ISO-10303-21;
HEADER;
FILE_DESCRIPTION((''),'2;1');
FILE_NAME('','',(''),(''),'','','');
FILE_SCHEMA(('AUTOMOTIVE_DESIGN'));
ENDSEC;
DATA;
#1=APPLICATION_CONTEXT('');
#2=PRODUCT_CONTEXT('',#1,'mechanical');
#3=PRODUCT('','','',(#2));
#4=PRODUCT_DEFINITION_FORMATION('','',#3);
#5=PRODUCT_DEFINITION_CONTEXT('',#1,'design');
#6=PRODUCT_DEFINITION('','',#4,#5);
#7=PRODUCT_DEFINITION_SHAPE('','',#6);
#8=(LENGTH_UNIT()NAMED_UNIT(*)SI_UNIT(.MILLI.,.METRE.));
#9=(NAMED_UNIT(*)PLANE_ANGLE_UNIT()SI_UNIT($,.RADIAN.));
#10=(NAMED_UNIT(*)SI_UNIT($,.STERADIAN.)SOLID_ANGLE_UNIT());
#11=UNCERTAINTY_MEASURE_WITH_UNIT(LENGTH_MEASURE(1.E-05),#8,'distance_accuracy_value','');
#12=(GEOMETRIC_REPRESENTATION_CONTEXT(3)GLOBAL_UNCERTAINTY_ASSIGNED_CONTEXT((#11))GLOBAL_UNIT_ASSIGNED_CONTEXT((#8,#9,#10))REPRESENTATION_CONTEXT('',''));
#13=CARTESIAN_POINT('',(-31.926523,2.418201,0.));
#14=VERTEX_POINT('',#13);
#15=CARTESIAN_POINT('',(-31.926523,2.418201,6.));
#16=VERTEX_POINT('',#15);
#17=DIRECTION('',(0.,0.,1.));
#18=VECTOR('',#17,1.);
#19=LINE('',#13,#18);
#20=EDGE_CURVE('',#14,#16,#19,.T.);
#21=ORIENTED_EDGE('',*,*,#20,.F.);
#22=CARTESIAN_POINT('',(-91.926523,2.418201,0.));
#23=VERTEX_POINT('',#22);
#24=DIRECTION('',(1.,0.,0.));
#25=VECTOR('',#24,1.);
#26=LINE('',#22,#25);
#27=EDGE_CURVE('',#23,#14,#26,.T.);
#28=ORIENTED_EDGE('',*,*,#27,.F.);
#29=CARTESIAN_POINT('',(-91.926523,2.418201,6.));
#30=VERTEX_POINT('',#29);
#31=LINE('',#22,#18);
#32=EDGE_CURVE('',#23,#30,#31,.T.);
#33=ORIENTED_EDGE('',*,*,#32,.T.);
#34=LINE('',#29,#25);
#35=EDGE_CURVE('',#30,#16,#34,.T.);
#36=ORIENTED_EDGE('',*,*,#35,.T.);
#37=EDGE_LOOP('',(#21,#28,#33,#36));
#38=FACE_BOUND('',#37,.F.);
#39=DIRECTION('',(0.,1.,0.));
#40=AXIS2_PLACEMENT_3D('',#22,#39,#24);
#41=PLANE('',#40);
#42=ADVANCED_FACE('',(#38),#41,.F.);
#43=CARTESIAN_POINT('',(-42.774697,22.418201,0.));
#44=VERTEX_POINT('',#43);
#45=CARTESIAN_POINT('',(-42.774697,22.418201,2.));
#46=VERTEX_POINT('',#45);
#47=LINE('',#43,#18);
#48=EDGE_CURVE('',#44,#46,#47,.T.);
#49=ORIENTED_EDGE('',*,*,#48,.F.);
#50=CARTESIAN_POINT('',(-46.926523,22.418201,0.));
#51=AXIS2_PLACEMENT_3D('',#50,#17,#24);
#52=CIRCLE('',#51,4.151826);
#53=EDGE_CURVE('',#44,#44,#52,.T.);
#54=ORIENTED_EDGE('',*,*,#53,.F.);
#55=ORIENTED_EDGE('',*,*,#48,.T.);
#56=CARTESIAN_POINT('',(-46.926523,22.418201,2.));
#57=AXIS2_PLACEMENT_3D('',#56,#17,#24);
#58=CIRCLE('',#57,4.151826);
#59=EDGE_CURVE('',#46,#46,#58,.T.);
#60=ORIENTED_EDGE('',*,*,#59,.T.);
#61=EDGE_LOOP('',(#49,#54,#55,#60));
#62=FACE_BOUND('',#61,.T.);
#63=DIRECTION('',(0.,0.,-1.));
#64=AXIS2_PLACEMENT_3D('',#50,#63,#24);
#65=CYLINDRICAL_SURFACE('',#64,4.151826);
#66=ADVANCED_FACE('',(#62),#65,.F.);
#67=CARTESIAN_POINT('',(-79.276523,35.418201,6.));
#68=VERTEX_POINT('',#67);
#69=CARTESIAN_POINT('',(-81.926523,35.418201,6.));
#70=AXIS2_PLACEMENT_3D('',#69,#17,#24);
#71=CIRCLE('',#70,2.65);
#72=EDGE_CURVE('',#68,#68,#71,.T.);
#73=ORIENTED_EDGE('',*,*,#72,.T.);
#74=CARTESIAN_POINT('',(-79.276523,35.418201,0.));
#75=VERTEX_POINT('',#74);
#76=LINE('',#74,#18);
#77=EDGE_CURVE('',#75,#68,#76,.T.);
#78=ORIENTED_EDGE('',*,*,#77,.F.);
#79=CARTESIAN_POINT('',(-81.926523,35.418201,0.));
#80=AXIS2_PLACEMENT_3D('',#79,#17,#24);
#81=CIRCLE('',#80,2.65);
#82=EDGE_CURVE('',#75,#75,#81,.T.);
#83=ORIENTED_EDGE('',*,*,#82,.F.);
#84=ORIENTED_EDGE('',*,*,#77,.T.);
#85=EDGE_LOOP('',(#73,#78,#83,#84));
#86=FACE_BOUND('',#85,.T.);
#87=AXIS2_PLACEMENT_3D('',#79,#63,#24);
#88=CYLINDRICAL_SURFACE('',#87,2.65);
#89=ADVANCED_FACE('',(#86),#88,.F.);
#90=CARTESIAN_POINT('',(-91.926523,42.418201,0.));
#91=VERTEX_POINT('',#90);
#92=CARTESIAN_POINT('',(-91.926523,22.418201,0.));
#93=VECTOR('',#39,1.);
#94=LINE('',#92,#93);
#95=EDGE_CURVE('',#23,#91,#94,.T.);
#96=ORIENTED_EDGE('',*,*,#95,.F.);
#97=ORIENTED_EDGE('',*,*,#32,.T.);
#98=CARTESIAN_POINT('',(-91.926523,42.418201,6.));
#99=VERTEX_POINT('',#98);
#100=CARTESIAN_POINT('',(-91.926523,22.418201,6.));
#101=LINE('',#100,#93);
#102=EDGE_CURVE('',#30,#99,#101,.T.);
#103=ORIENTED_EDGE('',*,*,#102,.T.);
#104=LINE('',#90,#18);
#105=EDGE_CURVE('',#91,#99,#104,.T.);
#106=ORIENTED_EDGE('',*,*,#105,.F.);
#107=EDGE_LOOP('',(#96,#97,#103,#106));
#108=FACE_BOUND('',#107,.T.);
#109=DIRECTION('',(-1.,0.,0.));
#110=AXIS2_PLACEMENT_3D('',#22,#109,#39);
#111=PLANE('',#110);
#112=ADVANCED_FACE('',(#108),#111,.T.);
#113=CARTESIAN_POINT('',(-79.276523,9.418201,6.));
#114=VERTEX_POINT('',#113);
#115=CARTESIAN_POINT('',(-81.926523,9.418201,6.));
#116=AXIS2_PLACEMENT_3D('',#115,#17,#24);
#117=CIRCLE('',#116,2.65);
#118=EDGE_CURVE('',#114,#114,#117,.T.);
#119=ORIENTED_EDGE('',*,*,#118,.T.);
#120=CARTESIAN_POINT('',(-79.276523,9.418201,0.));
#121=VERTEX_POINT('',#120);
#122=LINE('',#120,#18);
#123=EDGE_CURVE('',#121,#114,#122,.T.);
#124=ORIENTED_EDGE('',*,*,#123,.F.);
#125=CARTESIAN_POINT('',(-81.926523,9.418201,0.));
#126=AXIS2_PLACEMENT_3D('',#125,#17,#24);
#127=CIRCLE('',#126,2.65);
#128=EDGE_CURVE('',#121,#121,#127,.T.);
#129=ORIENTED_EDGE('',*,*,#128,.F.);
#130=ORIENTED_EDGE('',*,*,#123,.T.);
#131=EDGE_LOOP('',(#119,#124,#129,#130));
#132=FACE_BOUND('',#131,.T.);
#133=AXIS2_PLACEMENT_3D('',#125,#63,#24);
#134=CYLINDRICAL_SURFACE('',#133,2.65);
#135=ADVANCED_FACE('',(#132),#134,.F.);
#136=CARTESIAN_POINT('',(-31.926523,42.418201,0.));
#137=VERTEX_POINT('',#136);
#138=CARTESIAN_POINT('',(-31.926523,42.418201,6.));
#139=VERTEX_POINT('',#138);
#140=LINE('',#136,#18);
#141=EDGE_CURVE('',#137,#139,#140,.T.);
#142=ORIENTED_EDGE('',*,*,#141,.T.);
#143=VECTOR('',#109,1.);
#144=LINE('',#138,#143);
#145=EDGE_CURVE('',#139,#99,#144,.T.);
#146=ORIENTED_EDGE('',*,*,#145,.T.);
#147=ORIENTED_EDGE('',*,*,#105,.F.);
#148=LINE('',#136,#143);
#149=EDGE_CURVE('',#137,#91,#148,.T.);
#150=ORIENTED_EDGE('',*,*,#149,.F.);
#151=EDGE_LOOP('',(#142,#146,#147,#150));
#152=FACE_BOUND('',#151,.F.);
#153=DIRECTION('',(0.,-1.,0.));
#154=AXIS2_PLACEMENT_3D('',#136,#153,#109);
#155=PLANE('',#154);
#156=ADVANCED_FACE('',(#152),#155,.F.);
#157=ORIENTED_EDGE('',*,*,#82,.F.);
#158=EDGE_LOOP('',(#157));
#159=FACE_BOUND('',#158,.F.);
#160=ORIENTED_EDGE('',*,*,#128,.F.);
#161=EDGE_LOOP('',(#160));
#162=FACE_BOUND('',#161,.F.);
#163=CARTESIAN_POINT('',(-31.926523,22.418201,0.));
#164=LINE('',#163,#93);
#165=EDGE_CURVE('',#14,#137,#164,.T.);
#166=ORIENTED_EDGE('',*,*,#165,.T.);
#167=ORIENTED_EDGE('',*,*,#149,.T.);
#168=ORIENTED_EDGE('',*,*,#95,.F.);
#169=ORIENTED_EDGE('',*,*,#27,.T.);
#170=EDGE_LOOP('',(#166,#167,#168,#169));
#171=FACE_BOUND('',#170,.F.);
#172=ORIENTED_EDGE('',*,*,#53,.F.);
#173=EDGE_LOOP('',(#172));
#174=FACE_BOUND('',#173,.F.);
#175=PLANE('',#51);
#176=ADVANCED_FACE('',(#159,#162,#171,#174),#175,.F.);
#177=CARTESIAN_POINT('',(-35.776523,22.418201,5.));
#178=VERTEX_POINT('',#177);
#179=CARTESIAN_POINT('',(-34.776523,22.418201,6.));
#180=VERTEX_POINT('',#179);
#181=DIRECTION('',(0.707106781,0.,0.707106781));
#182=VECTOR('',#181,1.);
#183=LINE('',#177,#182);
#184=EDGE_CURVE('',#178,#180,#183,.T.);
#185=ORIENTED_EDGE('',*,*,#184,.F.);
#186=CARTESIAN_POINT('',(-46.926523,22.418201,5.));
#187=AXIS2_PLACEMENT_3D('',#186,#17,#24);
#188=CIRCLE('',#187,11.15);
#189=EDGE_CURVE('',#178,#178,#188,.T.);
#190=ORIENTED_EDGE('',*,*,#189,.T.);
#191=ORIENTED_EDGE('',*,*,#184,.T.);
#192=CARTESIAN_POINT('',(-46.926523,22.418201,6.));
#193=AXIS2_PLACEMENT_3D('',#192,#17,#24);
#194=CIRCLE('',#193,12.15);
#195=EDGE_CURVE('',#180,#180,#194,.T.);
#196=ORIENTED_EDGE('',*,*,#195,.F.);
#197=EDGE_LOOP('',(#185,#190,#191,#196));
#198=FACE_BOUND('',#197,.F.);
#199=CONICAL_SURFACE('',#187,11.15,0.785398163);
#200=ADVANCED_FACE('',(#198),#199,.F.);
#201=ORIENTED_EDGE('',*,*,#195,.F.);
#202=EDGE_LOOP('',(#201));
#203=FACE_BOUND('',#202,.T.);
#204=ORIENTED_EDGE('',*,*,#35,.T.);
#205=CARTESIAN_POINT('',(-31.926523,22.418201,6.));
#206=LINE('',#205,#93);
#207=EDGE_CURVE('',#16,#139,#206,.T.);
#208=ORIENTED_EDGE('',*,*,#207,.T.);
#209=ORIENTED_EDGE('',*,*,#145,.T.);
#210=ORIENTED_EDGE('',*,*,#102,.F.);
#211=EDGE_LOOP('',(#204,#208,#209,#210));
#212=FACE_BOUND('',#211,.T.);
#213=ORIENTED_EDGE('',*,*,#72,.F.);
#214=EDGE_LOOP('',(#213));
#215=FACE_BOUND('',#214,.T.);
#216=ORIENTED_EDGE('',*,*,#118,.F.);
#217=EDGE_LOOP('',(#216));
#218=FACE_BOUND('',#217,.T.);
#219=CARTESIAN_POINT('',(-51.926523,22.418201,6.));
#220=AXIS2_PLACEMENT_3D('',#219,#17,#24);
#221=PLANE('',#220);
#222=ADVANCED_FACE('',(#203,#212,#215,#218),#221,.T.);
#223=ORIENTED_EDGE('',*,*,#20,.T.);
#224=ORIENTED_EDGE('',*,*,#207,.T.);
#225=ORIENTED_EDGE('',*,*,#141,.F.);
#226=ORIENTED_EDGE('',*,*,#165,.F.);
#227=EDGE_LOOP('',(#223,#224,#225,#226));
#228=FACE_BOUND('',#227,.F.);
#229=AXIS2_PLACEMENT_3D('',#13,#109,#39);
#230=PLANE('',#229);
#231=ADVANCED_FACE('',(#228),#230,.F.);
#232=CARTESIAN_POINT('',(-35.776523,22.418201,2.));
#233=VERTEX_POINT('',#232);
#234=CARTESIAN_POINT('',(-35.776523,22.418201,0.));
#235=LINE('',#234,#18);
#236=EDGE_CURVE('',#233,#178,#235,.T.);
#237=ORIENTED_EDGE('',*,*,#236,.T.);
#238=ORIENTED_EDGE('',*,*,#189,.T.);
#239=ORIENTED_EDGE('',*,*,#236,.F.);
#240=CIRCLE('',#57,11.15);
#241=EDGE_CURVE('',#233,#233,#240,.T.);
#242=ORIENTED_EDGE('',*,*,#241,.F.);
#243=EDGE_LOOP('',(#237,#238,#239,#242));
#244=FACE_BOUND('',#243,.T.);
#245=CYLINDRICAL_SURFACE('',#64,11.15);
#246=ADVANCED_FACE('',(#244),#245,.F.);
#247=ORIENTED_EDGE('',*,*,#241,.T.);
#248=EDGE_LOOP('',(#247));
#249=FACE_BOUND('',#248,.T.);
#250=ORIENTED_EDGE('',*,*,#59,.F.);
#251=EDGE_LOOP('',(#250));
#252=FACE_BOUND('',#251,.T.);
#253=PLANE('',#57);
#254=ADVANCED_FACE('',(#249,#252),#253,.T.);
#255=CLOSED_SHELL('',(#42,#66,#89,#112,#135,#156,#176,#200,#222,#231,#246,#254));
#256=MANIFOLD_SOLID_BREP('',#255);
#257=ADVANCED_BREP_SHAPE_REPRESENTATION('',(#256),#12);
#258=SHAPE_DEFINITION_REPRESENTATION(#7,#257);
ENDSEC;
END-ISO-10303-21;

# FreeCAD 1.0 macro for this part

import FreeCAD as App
import Part
import Sketcher
from FreeCAD import Vector
Q = App.Units.Quantity


def edges_at(feature, points):
    """Names of the edges that pass closest to the given points."""
    edges = feature.Shape.Edges
    near = lambda p: min(range(len(edges)), key=lambda i: edges[i].distToShape(Part.Vertex(*p))[0])
    return sorted({f"Edge{near(p) + 1}" for p in points})


def add_polygon(sketch, points):
    """Adds a closed chain of lines whose ends are joined by coincident constraints."""
    first, n = sketch.GeometryCount, len(points)
    for a, b in zip(points, points[1:] + points[:1]):
        sketch.addGeometry(Part.LineSegment(App.Vector(*a, 0), App.Vector(*b, 0)), False)
    for i in range(n):
        sketch.addConstraint(Sketcher.Constraint("Coincident", first + i, 2, first + (i + 1) % n, 1))

doc = App.newDocument("Part")
body = doc.addObject("PartDesign::Body", "Body")

# Sketch on XY plane
sketch1 = body.newObject("Sketcher::SketchObject", "Sketch")
sketch1.AttachmentSupport = (doc.getObject("XY_Plane"), [""])
sketch1.MapMode = "FlatFace"
add_polygon(sketch1, [(-31.9, 2.4), (-31.9, 42.4), (-91.9, 42.4), (-91.9, 2.4)])  # lines 0-3
sketch1.addGeometry(Part.Circle(Vector(-81.9, 9.4, 0), Vector(0, 0, 1), 2.6), False)  # 4
sketch1.addGeometry(Part.Circle(Vector(-46.9, 22.4, 0), Vector(0, 0, 1), 11.2), False)  # 5
sketch1.addGeometry(Part.Circle(Vector(-81.9, 35.4, 0), Vector(0, 0, 1), 2.6), False)  # 6
sketch1.addConstraint(Sketcher.Constraint("Vertical", 0))
sketch1.addConstraint(Sketcher.Constraint("Horizontal", 1))
sketch1.addConstraint(Sketcher.Constraint("Vertical", 2))
sketch1.addConstraint(Sketcher.Constraint("Horizontal", 3))
sketch1.addConstraint(Sketcher.Constraint("Equal", 4, 6))
sketch1.addConstraint(Sketcher.Constraint("Vertical", 4, 3, 6, 3))
sketch1.addConstraint(Sketcher.Constraint("Diameter", 4, Q("5.3 mm")))
sketch1.addConstraint(Sketcher.Constraint("Diameter", 5, Q("22.3 mm")))
sketch1.addConstraint(Sketcher.Constraint("DistanceX", 1, 2, 1, 1, Q("60 mm")))
sketch1.addConstraint(Sketcher.Constraint("DistanceY", 0, 1, 0, 2, Q("40 mm")))
sketch1.addConstraint(Sketcher.Constraint("DistanceX", 4, 3, 5, 3, Q("35 mm")))
sketch1.addConstraint(Sketcher.Constraint("DistanceY", 4, 3, 5, 3, Q("13 mm")))
sketch1.addConstraint(Sketcher.Constraint("DistanceY", 4, 3, 6, 3, Q("26 mm")))
sketch1.addConstraint(Sketcher.Constraint("DistanceX", 5, 3, 0, 2, Q("15 mm")))
sketch1.addConstraint(Sketcher.Constraint("DistanceY", 5, 3, 0, 2, Q("20 mm")))
sketch1.addConstraint(Sketcher.Constraint("DistanceY", -1, 1, 4, 3, Q("9.418201 mm")))
sketch1.addConstraint(Sketcher.Constraint("DistanceX", 4, 3, -1, 1, Q("81.926523 mm")))
pad1 = body.newObject("PartDesign::Pad", "Pad")
pad1.Profile = sketch1
pad1.Length = 6

# Sketch on XY plane
sketch2 = body.newObject("Sketcher::SketchObject", "Sketch001")
sketch2.AttachmentSupport = (doc.getObject("XY_Plane"), [""])
sketch2.MapMode = "FlatFace"
sketch2.addGeometry(Part.Circle(Vector(-46.9, 22.4, 0), Vector(0, 0, 1), 11.2), False)
sketch2.addGeometry(Part.Circle(Vector(-46.9, 22.4, 0), Vector(0, 0, 1), 4.2), False)
sketch2.addConstraint(Sketcher.Constraint("Coincident", 1, 3, 0, 3))
sketch2.addConstraint(Sketcher.Constraint("Diameter", 0, Q("22.3 mm")))
sketch2.addConstraint(Sketcher.Constraint("Diameter", 1, Q("8.303652 mm")))
sketch2.addConstraint(Sketcher.Constraint("DistanceY", -1, 1, 0, 3, Q("22.418201 mm")))
sketch2.addConstraint(Sketcher.Constraint("DistanceX", 0, 3, -1, 1, Q("46.926523 mm")))
pad2 = body.newObject("PartDesign::Pad", "Pad001")
pad2.Profile = sketch2
pad2.Length = 2
doc.recompute()

chamfer = body.newObject("PartDesign::Chamfer", "Chamfer")
chamfer.Base = (pad2, edges_at(pad2, [(-58.077, 22.418, 6)]))
chamfer.Size = 1

doc.recompute()
